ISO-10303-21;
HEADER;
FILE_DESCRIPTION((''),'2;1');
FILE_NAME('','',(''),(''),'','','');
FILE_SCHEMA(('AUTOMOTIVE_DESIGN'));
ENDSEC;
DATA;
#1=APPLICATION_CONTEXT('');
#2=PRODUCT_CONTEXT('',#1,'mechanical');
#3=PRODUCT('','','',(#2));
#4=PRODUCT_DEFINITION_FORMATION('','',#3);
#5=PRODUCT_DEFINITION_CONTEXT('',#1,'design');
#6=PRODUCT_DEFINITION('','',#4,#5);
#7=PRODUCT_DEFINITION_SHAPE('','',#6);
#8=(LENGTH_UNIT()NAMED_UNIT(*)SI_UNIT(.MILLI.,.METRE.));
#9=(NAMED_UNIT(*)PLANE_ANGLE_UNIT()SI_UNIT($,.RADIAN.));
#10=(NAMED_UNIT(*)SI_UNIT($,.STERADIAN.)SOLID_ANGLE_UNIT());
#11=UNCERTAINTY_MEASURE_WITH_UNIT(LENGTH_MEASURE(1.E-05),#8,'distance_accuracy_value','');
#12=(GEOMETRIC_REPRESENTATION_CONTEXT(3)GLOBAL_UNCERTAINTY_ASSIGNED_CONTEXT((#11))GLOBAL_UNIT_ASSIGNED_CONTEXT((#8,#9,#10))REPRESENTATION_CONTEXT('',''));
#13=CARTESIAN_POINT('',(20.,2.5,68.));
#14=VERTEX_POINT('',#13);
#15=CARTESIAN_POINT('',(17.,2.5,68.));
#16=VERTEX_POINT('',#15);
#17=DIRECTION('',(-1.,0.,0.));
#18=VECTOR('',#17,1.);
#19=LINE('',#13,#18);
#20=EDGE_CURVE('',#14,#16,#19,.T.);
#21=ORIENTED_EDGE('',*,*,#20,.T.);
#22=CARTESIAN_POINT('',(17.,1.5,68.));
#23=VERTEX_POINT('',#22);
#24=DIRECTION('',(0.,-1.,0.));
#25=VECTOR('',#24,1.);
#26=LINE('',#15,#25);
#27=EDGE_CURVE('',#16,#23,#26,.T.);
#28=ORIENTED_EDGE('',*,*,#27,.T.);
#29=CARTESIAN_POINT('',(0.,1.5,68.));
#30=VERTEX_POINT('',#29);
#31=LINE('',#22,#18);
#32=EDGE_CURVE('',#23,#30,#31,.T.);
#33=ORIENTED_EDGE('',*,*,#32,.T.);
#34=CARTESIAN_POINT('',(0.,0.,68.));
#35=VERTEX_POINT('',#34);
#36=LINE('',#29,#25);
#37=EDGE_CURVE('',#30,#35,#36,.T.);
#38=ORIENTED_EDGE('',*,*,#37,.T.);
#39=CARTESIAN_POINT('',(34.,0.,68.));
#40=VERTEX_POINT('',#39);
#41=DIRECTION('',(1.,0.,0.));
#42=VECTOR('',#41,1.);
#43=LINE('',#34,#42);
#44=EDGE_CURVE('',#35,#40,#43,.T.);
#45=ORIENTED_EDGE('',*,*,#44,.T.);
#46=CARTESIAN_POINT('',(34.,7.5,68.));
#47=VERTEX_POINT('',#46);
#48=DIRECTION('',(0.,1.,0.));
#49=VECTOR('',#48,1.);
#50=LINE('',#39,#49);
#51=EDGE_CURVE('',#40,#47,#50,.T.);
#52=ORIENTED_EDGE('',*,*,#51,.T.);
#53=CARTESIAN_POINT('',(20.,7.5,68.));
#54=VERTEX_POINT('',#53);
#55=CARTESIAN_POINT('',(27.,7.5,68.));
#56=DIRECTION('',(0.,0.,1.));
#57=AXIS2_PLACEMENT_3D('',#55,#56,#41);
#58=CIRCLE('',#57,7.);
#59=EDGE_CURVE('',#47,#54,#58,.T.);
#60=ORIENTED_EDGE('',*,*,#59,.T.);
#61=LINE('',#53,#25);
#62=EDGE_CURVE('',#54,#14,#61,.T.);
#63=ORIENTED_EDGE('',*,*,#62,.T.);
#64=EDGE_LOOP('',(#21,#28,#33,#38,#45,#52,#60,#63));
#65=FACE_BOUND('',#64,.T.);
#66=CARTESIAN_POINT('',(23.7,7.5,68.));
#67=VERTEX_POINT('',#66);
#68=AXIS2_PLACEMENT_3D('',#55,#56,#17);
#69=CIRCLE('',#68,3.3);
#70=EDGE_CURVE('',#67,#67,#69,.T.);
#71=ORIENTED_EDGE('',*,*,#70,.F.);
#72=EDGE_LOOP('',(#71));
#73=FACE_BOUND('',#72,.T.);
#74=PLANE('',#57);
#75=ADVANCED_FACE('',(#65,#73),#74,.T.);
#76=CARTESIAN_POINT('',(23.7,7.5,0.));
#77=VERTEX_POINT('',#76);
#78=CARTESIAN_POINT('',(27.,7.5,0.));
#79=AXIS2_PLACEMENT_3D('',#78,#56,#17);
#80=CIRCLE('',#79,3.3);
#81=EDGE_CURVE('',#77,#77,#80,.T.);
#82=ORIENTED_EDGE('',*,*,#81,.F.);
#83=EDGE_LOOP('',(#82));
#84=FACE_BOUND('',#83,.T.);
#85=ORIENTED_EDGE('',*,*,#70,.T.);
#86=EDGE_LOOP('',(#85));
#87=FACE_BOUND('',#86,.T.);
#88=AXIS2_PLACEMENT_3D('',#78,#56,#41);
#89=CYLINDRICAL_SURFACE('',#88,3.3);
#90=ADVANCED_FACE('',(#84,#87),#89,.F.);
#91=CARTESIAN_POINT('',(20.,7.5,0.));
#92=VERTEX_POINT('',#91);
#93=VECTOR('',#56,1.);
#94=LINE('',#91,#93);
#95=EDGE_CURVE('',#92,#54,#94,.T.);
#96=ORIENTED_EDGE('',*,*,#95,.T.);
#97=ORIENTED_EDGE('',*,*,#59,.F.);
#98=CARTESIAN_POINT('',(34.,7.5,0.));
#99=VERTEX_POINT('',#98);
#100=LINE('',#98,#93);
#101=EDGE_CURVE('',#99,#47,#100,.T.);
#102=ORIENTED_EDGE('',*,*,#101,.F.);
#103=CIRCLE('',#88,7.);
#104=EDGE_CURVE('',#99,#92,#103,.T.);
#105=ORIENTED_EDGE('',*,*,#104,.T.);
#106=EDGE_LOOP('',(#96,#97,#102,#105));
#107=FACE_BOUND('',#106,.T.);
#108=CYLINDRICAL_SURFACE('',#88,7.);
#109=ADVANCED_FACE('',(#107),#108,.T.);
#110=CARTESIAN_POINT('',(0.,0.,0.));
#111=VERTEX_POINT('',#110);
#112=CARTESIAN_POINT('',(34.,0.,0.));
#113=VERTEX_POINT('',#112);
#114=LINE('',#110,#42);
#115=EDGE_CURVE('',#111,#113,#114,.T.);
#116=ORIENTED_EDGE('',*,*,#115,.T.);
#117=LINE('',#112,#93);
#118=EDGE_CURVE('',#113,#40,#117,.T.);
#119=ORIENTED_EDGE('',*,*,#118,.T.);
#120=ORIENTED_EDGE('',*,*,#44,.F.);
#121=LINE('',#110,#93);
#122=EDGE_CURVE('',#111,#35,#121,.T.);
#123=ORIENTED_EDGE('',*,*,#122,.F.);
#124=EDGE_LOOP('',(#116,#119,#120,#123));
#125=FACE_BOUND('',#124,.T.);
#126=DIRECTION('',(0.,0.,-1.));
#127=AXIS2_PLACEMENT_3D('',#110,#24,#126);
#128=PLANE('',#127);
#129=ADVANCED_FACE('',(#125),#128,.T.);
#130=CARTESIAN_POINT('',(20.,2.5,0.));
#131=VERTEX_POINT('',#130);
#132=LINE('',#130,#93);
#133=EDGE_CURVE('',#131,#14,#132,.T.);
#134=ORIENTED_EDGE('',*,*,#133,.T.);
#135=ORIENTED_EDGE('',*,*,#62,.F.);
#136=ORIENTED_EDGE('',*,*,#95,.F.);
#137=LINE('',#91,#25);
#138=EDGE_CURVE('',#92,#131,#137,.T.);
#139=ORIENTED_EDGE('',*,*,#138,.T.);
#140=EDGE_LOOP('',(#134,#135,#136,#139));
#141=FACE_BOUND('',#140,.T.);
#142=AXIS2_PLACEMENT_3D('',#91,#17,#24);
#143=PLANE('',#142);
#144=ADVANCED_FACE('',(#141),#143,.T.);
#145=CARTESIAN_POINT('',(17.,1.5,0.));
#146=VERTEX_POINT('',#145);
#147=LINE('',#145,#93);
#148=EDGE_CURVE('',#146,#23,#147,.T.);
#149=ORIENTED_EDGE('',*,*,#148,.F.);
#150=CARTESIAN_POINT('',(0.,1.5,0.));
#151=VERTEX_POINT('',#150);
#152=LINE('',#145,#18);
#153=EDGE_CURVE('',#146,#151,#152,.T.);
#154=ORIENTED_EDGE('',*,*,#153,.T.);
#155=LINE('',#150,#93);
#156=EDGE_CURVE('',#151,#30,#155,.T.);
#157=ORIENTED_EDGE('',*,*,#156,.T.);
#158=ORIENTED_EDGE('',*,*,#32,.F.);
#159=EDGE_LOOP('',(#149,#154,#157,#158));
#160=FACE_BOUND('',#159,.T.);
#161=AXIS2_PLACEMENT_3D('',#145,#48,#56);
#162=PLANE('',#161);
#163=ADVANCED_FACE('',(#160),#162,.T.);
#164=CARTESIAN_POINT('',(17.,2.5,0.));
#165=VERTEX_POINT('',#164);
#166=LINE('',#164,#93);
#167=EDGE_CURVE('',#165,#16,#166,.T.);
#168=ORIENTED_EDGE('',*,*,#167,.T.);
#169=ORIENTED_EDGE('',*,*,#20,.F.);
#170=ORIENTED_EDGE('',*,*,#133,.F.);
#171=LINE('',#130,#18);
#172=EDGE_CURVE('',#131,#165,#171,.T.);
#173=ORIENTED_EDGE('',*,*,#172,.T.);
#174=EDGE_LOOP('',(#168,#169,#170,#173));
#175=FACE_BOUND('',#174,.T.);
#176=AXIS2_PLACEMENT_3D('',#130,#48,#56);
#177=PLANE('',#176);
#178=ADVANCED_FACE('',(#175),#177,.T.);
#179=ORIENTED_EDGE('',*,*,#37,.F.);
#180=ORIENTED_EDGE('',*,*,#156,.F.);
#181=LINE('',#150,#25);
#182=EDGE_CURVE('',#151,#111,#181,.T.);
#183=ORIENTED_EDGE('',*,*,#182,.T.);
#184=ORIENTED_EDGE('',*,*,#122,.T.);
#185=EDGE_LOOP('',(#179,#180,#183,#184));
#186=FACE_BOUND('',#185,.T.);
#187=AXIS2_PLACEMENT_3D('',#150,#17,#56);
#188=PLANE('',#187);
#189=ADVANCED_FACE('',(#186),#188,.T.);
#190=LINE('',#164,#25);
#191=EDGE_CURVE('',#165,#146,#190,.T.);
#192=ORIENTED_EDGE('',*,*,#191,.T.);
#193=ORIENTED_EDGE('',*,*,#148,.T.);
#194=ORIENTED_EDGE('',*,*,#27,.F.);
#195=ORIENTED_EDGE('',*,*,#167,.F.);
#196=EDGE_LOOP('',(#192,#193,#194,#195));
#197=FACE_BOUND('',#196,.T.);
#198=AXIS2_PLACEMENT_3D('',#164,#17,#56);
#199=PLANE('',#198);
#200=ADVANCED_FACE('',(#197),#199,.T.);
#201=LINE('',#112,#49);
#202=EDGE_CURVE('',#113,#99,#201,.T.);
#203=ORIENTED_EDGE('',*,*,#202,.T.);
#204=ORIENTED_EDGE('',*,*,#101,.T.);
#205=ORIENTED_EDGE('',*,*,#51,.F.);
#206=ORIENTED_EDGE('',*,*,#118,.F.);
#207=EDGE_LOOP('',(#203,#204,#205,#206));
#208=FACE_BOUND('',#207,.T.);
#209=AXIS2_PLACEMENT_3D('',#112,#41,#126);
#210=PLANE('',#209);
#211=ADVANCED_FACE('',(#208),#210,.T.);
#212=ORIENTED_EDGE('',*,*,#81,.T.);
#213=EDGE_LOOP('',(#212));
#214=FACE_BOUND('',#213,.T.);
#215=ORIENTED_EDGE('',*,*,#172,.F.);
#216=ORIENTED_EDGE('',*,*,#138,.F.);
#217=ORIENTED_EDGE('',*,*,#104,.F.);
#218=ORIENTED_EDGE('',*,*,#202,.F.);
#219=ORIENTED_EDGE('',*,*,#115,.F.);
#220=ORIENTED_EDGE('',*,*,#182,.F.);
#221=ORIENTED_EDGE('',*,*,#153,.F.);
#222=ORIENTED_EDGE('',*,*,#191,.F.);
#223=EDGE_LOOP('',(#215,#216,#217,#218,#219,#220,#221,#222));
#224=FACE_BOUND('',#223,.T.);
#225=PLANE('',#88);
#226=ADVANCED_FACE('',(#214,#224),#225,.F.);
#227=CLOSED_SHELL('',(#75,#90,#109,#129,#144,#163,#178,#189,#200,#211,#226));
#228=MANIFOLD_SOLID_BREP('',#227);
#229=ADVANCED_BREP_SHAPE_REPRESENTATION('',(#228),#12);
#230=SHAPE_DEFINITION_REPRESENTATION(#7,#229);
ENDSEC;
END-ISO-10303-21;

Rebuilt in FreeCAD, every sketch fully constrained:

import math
import FreeCAD as App
import Part
import Sketcher
from FreeCAD import Vector
Q = App.Units.Quantity

doc = App.newDocument("Part")
body = doc.addObject("PartDesign::Body", "Body")

# Sketch on XY plane
sketch1 = body.newObject("Sketcher::SketchObject", "Sketch")
sketch1.AttachmentSupport = (doc.getObject("XY_Plane"), [""])
sketch1.MapMode = "FlatFace"
sketch1.AttachmentOffset = App.Placement(Vector(0, 0, 68), App.Rotation())
sketch1.addGeometry(Part.LineSegment(Vector(20, 7.5, 0), Vector(20, 2.5, 0)), False)
sketch1.addGeometry(Part.LineSegment(Vector(20, 2.5, 0), Vector(17, 2.5, 0)), False)
sketch1.addGeometry(Part.LineSegment(Vector(17, 2.5, 0), Vector(17, 1.5, 0)), False)
sketch1.addGeometry(Part.LineSegment(Vector(17, 1.5, 0), Vector(0, 1.5, 0)), False)
sketch1.addGeometry(Part.LineSegment(Vector(0, 1.5, 0), Vector(0, 0, 0)), False)
sketch1.addGeometry(Part.LineSegment(Vector(0, 0, 0), Vector(34, 0, 0)), False)
sketch1.addGeometry(Part.LineSegment(Vector(34, 0, 0), Vector(34, 7.5, 0)), False)
sketch1.addGeometry(Part.ArcOfCircle(Part.Circle(Vector(27, 7.5, 0), Vector(0, 0, 1), 7), math.radians(0), math.radians(180)), False)
sketch1.addGeometry(Part.Circle(Vector(27, 7.5, 0), Vector(0, 0, 1), 3.3), False)
sketch1.addConstraint(Sketcher.Constraint("Coincident", 0, 2, 1, 1))
sketch1.addConstraint(Sketcher.Constraint("Coincident", 1, 2, 2, 1))
sketch1.addConstraint(Sketcher.Constraint("Coincident", 2, 2, 3, 1))
sketch1.addConstraint(Sketcher.Constraint("Coincident", 3, 2, 4, 1))
sketch1.addConstraint(Sketcher.Constraint("Coincident", 4, 2, 5, 1))
sketch1.addConstraint(Sketcher.Constraint("Coincident", 5, 2, 6, 1))
sketch1.addConstraint(Sketcher.Constraint("Tangent", 6, 2, 7, 1))
sketch1.addConstraint(Sketcher.Constraint("Tangent", 7, 2, 0, 1))
sketch1.addConstraint(Sketcher.Constraint("Vertical", 0))
sketch1.addConstraint(Sketcher.Constraint("Horizontal", 1))
sketch1.addConstraint(Sketcher.Constraint("Vertical", 2))
sketch1.addConstraint(Sketcher.Constraint("Horizontal", 3))
sketch1.addConstraint(Sketcher.Constraint("Vertical", 4))
sketch1.addConstraint(Sketcher.Constraint("Horizontal", 5))
sketch1.addConstraint(Sketcher.Constraint("Vertical", 6))
sketch1.addConstraint(Sketcher.Constraint("Coincident", 4, 2, -1, 1))
sketch1.addConstraint(Sketcher.Constraint("Coincident", 8, 3, 7, 3))
sketch1.addConstraint(Sketcher.Constraint("Radius", 7, Q("7 mm")))
sketch1.addConstraint(Sketcher.Constraint("Diameter", 8, Q("6.6 mm")))
sketch1.addConstraint(Sketcher.Constraint("DistanceX", 1, 2, 1, 1, Q("3 mm")))
sketch1.addConstraint(Sketcher.Constraint("DistanceX", 3, 2, 3, 1, Q("17 mm")))
sketch1.addConstraint(Sketcher.Constraint("DistanceY", 0, 2, 0, 1, Q("5 mm")))
sketch1.addConstraint(Sketcher.Constraint("DistanceY", 2, 2, 2, 1, Q("1 mm")))
sketch1.addConstraint(Sketcher.Constraint("DistanceY", 4, 2, 4, 1, Q("1.5 mm")))
pad1 = body.newObject("PartDesign::Pad", "Pad")
pad1.Profile = sketch1
pad1.Length = 68
pad1.Reversed = True

doc.recompute()
